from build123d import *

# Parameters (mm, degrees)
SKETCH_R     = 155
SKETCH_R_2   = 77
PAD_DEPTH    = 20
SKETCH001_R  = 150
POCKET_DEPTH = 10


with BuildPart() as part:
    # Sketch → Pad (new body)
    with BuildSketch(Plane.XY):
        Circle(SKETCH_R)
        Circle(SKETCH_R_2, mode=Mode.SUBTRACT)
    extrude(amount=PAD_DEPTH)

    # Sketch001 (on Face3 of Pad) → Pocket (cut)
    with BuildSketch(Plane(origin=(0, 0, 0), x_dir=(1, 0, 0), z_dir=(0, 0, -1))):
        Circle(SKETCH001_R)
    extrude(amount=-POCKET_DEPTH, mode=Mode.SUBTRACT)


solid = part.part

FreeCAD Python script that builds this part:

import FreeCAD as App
import Part
import Sketcher

V = App.Vector
Q = App.Units.Quantity

doc = App.newDocument("Part")
params = doc.addObject("Spreadsheet::Sheet", "Params")
for row, (alias, value) in enumerate([
    ("sketch1_diameter", "310 mm"),
    ("sketch1_diameter2", "154 mm"),
    ("pad1_length", "20 mm"),
    ("sketch2_diameter", "300 mm"),
    ("pocket1_length", "10 mm"),
], start=1):
    params.set(f"A{row}", alias)
    params.set(f"B{row}", "=" + value)
    params.setAlias(f"B{row}", alias)

body = doc.addObject("PartDesign::Body", "Body")

# Sketch on XY plane
sketch1 = body.newObject("Sketcher::SketchObject", "Sketch")
sketch1.AttachmentSupport = (doc.getObject("XY_Plane"), [""])
sketch1.MapMode = "FlatFace"
sketch1.addGeometry(Part.Circle(V(0, 0, 0), V(0, 0, 1), 155), False)
sketch1.addGeometry(Part.Circle(V(0, 0, 0), V(0, 0, 1), 77), False)
sketch1.addConstraint(Sketcher.Constraint("Coincident", 0, 3, -1, 1))
sketch1.addConstraint(Sketcher.Constraint("Coincident", 1, 3, -1, 1))
sketch1.addConstraint(Sketcher.Constraint("Diameter", 0, Q("310 mm")))
sketch1.addConstraint(Sketcher.Constraint("Diameter", 1, Q("154 mm")))
sketch1.setExpression("Constraints[2]", "Params.sketch1_diameter")
sketch1.setExpression("Constraints[3]", "Params.sketch1_diameter2")
pad1 = body.newObject("PartDesign::Pad", "Pad")
pad1.Profile = sketch1
pad1.setExpression("Length", "Params.pad1_length")

# Sketch on XY plane
sketch2 = body.newObject("Sketcher::SketchObject", "Sketch001")
sketch2.AttachmentSupport = (doc.getObject("XY_Plane"), [""])
sketch2.MapMode = "FlatFace"
sketch2.addGeometry(Part.Circle(V(0, 0, 0), V(0, 0, 1), 150), False)
sketch2.addConstraint(Sketcher.Constraint("Coincident", 0, 3, -1, 1))
sketch2.addConstraint(Sketcher.Constraint("Diameter", 0, Q("300 mm")))
sketch2.setExpression("Constraints[1]", "Params.sketch2_diameter")
pocket1 = body.newObject("PartDesign::Pocket", "Pocket")
pocket1.Profile = sketch2
pocket1.setExpression("Length", "Params.pocket1_length")
pocket1.Reversed = True

doc.recompute()
